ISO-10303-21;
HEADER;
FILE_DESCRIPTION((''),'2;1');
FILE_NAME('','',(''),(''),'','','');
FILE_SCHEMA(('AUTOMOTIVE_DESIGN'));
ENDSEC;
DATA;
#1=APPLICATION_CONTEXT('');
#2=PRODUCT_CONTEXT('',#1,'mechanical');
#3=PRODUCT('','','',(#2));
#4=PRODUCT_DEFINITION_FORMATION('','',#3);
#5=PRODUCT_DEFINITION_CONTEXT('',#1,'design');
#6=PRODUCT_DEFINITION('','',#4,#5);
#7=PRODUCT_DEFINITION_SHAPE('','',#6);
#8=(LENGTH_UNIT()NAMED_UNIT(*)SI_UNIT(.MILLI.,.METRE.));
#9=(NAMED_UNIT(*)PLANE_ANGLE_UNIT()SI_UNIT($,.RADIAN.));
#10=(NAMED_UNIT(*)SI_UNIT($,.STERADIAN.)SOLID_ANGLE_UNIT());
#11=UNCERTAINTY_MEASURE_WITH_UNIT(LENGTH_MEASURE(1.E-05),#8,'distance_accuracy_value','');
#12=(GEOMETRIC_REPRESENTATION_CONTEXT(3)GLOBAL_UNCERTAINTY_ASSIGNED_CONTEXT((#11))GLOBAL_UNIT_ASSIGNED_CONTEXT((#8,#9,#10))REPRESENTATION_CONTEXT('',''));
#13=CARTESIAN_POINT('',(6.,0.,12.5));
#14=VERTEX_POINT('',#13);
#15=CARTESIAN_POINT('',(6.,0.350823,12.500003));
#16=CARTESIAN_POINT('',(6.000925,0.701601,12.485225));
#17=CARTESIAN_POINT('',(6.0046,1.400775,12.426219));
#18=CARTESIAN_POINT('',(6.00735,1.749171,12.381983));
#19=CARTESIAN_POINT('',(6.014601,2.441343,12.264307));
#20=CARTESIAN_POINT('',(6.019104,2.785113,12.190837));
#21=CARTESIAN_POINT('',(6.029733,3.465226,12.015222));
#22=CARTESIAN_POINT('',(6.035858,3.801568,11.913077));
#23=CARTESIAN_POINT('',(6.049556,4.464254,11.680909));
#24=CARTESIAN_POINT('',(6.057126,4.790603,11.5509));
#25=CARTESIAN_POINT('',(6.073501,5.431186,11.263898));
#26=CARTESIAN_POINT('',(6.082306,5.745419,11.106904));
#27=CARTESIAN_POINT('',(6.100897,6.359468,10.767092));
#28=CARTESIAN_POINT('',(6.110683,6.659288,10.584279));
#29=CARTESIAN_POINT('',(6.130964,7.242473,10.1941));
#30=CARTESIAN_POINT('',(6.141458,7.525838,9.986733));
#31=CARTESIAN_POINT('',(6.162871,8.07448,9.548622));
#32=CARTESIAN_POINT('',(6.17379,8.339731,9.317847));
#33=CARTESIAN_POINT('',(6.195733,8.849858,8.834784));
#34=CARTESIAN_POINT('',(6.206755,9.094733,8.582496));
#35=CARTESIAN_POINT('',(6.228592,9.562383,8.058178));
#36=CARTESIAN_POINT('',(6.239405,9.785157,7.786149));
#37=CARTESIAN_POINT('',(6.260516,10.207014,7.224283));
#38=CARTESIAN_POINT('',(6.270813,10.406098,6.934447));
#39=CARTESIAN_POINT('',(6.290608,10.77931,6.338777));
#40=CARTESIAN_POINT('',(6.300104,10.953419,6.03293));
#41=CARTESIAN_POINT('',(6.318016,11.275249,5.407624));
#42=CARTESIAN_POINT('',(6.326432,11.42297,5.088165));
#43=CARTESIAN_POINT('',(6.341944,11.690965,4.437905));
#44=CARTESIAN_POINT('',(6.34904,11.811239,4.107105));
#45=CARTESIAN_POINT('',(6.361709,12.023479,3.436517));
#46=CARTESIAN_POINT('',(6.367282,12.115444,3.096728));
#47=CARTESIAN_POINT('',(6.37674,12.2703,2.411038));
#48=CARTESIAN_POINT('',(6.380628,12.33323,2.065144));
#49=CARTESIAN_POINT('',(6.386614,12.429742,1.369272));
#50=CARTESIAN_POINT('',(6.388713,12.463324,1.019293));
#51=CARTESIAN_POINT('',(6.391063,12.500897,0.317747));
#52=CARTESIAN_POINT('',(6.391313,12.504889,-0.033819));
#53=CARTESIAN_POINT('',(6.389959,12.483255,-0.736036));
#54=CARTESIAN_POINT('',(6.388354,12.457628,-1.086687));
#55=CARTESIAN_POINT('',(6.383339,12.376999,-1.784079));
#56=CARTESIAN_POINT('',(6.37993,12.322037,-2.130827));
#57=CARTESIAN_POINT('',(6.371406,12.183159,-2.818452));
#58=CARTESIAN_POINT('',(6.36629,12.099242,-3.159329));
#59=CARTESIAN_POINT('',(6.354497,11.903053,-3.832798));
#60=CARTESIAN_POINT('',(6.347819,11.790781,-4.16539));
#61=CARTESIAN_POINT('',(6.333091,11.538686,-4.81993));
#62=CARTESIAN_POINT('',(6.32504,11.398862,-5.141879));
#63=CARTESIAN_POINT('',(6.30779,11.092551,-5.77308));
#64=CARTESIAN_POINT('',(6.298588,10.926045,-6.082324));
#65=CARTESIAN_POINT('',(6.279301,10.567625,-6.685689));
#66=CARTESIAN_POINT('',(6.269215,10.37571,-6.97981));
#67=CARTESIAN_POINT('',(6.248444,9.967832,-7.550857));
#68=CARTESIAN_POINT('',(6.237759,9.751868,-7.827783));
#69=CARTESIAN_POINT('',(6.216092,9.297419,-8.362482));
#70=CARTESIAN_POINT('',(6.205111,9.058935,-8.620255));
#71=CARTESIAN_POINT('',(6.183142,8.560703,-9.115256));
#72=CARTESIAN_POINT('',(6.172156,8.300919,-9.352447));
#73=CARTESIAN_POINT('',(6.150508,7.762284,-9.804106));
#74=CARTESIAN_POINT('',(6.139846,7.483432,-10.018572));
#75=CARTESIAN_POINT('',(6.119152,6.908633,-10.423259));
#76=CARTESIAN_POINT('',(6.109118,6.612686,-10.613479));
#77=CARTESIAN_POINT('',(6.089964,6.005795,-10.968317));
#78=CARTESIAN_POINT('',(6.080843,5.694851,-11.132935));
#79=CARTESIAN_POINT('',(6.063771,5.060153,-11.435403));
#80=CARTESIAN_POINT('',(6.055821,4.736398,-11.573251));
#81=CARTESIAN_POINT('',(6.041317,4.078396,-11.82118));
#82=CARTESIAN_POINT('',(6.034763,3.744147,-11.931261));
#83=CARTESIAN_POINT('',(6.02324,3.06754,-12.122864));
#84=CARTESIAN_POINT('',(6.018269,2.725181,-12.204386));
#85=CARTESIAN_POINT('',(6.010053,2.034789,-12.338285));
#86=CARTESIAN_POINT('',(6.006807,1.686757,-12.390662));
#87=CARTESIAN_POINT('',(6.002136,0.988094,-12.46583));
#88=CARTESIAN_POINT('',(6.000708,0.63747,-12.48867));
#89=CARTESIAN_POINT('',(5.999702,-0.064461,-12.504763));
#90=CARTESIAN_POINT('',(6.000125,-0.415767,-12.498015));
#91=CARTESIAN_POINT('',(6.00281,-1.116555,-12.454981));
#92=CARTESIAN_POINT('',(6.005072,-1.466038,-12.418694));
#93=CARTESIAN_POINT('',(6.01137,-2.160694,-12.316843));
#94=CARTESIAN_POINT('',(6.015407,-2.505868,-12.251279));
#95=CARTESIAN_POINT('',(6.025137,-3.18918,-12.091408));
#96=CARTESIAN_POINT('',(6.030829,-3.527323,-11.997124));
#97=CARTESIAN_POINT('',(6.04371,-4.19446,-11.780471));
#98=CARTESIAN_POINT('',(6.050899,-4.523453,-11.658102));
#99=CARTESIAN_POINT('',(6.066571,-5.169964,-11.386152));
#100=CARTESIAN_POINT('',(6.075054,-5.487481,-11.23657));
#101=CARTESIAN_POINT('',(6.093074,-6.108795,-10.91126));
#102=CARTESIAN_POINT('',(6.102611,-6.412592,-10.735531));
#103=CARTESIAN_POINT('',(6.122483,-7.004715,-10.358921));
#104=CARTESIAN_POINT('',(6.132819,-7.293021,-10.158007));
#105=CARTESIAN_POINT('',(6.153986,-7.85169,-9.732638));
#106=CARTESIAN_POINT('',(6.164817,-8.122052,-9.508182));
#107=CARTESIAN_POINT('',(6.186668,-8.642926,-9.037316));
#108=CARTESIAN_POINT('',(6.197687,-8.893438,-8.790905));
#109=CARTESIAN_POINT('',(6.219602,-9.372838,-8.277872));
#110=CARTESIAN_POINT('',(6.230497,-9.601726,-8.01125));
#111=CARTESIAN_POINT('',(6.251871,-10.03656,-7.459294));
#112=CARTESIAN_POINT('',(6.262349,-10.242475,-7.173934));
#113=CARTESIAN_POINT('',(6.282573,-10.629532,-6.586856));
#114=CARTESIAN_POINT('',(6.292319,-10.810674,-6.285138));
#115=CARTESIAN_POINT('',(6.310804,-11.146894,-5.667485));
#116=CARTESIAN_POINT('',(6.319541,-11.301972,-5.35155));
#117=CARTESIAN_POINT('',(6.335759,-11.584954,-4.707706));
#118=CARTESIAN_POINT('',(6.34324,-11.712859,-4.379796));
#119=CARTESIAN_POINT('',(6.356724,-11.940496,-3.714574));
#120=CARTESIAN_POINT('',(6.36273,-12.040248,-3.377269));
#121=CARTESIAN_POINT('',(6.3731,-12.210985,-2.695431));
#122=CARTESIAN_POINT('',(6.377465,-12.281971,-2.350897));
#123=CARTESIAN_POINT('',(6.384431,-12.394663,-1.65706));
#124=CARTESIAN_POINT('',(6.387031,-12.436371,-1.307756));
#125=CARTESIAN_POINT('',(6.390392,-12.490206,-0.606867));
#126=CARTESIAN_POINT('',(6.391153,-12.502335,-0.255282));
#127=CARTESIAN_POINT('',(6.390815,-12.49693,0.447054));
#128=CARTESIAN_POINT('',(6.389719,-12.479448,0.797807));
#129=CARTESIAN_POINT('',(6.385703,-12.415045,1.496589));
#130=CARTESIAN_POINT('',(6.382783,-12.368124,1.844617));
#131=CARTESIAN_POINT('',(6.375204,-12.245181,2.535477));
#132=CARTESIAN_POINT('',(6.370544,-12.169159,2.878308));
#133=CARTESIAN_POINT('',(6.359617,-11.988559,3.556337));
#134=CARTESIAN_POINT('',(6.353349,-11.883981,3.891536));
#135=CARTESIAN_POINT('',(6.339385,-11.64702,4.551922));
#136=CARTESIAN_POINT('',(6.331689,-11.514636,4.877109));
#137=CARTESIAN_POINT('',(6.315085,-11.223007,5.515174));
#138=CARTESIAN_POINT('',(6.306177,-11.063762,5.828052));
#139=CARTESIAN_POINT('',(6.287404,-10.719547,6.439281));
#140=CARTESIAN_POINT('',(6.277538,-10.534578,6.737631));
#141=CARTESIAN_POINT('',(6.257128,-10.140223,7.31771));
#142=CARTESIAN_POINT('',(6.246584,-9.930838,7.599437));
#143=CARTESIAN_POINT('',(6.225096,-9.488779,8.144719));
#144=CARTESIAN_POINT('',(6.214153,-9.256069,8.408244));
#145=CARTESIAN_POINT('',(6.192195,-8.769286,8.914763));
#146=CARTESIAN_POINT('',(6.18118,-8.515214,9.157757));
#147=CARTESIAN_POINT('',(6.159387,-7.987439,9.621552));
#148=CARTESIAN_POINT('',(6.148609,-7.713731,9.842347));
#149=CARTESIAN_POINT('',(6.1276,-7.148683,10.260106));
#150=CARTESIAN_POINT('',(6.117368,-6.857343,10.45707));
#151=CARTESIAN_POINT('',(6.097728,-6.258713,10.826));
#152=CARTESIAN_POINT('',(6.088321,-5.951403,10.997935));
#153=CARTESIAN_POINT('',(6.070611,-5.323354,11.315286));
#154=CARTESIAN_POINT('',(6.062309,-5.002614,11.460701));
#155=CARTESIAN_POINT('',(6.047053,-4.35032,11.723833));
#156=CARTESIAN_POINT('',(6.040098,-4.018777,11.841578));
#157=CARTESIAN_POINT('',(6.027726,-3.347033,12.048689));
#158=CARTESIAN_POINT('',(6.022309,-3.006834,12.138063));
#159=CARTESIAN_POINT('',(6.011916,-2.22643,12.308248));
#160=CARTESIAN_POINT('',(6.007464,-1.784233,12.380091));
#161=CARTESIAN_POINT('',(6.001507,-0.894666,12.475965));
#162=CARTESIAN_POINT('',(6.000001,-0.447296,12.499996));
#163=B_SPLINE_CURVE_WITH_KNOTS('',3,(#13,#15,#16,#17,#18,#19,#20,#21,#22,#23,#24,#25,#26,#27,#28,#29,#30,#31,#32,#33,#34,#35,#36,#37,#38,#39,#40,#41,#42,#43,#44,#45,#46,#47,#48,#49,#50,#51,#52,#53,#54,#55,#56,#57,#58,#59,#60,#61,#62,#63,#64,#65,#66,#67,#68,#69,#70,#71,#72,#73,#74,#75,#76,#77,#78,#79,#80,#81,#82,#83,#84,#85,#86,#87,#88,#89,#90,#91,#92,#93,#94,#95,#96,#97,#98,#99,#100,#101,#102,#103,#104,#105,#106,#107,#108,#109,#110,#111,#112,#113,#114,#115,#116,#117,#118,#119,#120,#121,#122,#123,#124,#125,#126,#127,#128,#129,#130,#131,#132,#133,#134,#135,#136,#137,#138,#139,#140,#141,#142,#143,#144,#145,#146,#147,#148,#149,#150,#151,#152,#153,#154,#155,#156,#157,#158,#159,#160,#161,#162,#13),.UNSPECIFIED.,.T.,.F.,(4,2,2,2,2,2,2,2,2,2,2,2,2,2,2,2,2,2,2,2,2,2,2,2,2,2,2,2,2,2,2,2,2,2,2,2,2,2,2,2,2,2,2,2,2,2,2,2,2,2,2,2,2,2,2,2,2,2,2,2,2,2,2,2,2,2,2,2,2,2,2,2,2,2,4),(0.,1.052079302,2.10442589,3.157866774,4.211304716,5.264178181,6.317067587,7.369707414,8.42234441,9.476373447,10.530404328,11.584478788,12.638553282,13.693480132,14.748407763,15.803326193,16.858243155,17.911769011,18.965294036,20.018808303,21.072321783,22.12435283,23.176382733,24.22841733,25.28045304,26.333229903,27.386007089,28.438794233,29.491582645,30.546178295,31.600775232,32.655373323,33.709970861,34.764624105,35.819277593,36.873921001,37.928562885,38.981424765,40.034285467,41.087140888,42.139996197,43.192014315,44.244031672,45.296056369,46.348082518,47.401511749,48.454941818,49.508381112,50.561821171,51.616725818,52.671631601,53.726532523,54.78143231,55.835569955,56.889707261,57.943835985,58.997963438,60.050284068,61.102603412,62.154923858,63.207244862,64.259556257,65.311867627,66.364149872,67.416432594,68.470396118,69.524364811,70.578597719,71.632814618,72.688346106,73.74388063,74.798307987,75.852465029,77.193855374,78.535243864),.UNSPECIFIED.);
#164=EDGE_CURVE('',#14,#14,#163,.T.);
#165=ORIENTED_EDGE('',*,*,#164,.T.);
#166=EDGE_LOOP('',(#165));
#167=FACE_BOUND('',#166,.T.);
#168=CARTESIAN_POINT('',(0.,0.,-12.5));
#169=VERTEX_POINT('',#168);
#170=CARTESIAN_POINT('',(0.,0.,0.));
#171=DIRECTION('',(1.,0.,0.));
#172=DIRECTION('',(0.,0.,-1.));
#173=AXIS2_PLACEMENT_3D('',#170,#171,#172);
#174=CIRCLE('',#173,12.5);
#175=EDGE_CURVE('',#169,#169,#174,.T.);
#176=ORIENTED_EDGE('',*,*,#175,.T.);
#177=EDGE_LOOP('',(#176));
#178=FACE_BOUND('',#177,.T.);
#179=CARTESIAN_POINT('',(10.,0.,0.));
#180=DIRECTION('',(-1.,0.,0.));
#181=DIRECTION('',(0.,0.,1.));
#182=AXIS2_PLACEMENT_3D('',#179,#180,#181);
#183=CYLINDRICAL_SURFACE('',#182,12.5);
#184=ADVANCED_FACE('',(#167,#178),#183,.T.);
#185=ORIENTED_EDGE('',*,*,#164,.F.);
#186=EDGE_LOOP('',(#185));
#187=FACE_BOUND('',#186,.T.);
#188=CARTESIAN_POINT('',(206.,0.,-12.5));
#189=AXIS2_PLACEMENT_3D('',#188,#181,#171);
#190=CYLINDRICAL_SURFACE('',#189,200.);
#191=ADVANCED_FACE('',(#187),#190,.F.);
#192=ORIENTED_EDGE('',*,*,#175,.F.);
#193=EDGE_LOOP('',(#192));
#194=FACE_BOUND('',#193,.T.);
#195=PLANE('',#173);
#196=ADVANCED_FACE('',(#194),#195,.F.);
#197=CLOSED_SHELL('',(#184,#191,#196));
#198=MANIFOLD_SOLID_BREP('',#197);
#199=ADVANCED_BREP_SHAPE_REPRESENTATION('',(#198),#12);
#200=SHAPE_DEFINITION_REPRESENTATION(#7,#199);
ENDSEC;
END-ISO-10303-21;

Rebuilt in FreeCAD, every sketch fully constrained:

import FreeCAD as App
import Part
import Sketcher

doc = App.newDocument("Part")
body = doc.addObject("PartDesign::Body", "Body")

sketch1 = body.newObject("Sketcher::SketchObject", "Sketch")
sketch1.AttachmentSupport = (doc.getObject("YZ_Plane"), [""])
sketch1.MapMode = "FlatFace"
sketch1.addGeometry(Part.Circle(App.Vector(0, 0, 0), App.Vector(0, 0, 1), 12), False)
sketch1.addConstraint([
    Sketcher.Constraint("Coincident", 0, 3, -1, 1),
    Sketcher.Constraint("Diameter", 0, 25.0),
])
pad1 = body.newObject("PartDesign::Pad", "Pad")
pad1.Profile = sketch1
pad1.Length = 10

sketch2 = body.newObject("Sketcher::SketchObject", "Sketch001")
sketch2.AttachmentSupport = (doc.getObject("XY_Plane"), [""])
sketch2.MapMode = "FlatFace"
sketch2.addGeometry(Part.Circle(App.Vector(206, 0, 0), App.Vector(0, 0, 1), 200), False)
sketch2.addConstraint([
    Sketcher.Constraint("PointOnObject", 0, 3, -1),
    Sketcher.Constraint("Diameter", 0, 400.0),
    Sketcher.Constraint("DistanceX", -1, 1, 0, 3, 206.0),
])
pocket1 = body.newObject("PartDesign::Pocket", "Pocket")
pocket1.Profile = sketch2
pocket1.Type = "ThroughAll"
pocket1.Midplane = True

doc.recompute()
